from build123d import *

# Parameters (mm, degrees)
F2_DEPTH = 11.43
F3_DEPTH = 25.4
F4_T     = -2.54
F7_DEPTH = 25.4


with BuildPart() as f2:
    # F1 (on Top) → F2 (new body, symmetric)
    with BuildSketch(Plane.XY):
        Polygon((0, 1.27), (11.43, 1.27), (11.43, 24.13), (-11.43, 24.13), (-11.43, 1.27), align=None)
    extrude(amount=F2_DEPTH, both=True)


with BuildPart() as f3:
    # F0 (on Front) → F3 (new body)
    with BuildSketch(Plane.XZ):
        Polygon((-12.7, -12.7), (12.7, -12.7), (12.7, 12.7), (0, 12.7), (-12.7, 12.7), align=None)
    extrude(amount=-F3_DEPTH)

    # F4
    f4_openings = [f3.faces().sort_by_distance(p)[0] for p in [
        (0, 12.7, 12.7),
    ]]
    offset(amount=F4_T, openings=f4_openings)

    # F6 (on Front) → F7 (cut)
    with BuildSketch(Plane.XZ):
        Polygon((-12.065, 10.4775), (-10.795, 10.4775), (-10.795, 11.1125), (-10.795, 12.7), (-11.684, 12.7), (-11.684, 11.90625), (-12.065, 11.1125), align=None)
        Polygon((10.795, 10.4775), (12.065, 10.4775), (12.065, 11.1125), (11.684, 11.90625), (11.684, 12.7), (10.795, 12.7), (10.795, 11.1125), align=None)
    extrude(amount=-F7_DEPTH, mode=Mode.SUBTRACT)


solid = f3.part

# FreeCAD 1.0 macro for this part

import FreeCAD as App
import Part
import Sketcher

V = App.Vector
Q = App.Units.Quantity


def faces_at(feature, points):
    """Names of the faces that lie closest to the given points."""
    faces = feature.Shape.Faces
    near = lambda p: min(range(len(faces)), key=lambda i: faces[i].distToShape(Part.Vertex(*p))[0])
    return sorted({f"Face{near(p) + 1}" for p in points})


def add_polygon(sketch, points):
    """Adds a closed chain of lines whose ends are joined by coincident constraints."""
    first, n = sketch.GeometryCount, len(points)
    for a, b in zip(points, points[1:] + points[:1]):
        sketch.addGeometry(Part.LineSegment(App.Vector(*a, 0), App.Vector(*b, 0)), False)
    for i in range(n):
        sketch.addConstraint(Sketcher.Constraint("Coincident", first + i, 2, first + (i + 1) % n, 1))

doc = App.newDocument("Part")
params = doc.addObject("Spreadsheet::Sheet", "Params")
for row, (alias, value) in enumerate([
    ("sketch1_width", "0.9 in"),
    ("pad1_length", "0.9 in"),
    ("sketch2_width", "1 in"),
    ("pad2_length", "1 in"),
    ("thickness_wall", "0.1 in"),
    ("sketch3_width", "0.05 in"),
    ("sketch3_width2", "0.035 in"),
    ("sketch3_height", "0.03125 in"),
    ("sketch3_height2", "0.025 in"),
    ("pocket1_length", "1 in"),
], start=1):
    params.set(f"A{row}", alias)
    params.set(f"B{row}", "=" + value)
    params.setAlias(f"B{row}", alias)

body = doc.addObject("PartDesign::Body", "Body")

sketch1 = body.newObject("Sketcher::SketchObject", "Sketch")
sketch1.AttachmentSupport = (doc.getObject("XY_Plane"), [""])
sketch1.MapMode = "FlatFace"
add_polygon(sketch1, [(11, 1), (11, 24), (-11, 24), (-11, 1)])
sketch1.addConstraint(Sketcher.Constraint("Vertical", 0))
sketch1.addConstraint(Sketcher.Constraint("Horizontal", 1))
sketch1.addConstraint(Sketcher.Constraint("Vertical", 2))
sketch1.addConstraint(Sketcher.Constraint("Horizontal", 3))
sketch1.addConstraint(Sketcher.Constraint("Equal", 3, 0))
sketch1.addConstraint(Sketcher.Constraint("DistanceX", 1, 2, 1, 1, Q("0.9 in")))
sketch1.addConstraint(Sketcher.Constraint("DistanceX", -1, 1, 0, 2, Q("0.45 in")))
sketch1.addConstraint(Sketcher.Constraint("DistanceY", -1, 1, 0, 2, Q("0.95 in")))
sketch1.setExpression("Constraints[9]", "Params.sketch1_width")
pad1 = body.newObject("PartDesign::Pad", "Pad")
pad1.Profile = sketch1
pad1.setExpression("Length", "Params.pad1_length")
pad1.Midplane = True
body2 = doc.addObject("PartDesign::Body", "Body001")

sketch2 = body2.newObject("Sketcher::SketchObject", "Sketch001")
sketch2.AttachmentSupport = (doc.getObject("XZ_Plane001"), [""])
sketch2.MapMode = "FlatFace"
add_polygon(sketch2, [(-13, -13), (13, -13), (13, 13), (-13, 13)])
sketch2.addConstraint(Sketcher.Constraint("Horizontal", 0))
sketch2.addConstraint(Sketcher.Constraint("Vertical", 1))
sketch2.addConstraint(Sketcher.Constraint("Horizontal", 2))
sketch2.addConstraint(Sketcher.Constraint("Vertical", 3))
sketch2.addConstraint(Sketcher.Constraint("Symmetric", 0, 2, 2, 2, -1, 1))
sketch2.addConstraint(Sketcher.Constraint("Equal", 2, 1))
sketch2.addConstraint(Sketcher.Constraint("DistanceX", 0, 1, 0, 2, Q("1 in")))
sketch2.setExpression("Constraints[10]", "Params.sketch2_width")
pad2 = body2.newObject("PartDesign::Pad", "Pad001")
pad2.Profile = sketch2
pad2.setExpression("Length", "Params.pad2_length")
pad2.Reversed = True
doc.recompute()

thickness = body2.newObject("PartDesign::Thickness", "Thickness")
thickness.Base = (pad2, faces_at(pad2, [(0, 12.7, 12.7)]))
thickness.setExpression("Value", "Params.thickness_wall")
thickness.Reversed = True
thickness.Join = "Arc"

sketch3 = body2.newObject("Sketcher::SketchObject", "Sketch002")
sketch3.AttachmentSupport = (doc.getObject("XZ_Plane001"), [""])
sketch3.MapMode = "FlatFace"
add_polygon(sketch3, [(-12.1, 10.5), (-10.8, 10.5), (-10.8, 12.7), (-11.7, 12.7), (-11.7, 11.9), (-12.1, 11.1)])
add_polygon(sketch3, [(10.8, 10.5), (12.1, 10.5), (12.1, 11.1), (11.7, 11.9), (11.7, 12.7), (10.8, 12.7)])
sketch3.addConstraint(Sketcher.Constraint("Horizontal", 0))
sketch3.addConstraint(Sketcher.Constraint("Vertical", 1))
sketch3.addConstraint(Sketcher.Constraint("Horizontal", 2))
sketch3.addConstraint(Sketcher.Constraint("Vertical", 3))
sketch3.addConstraint(Sketcher.Constraint("Vertical", 5))
sketch3.addConstraint(Sketcher.Constraint("Horizontal", 6))
sketch3.addConstraint(Sketcher.Constraint("Vertical", 7))
sketch3.addConstraint(Sketcher.Constraint("Vertical", 9))
sketch3.addConstraint(Sketcher.Constraint("Horizontal", 10))
sketch3.addConstraint(Sketcher.Constraint("Vertical", 11))
sketch3.addConstraint(Sketcher.Constraint("Symmetric", 5, 2, 6, 2, -2))
sketch3.addConstraint(Sketcher.Constraint("Symmetric", 3, 2, 8, 2, -2))
sketch3.addConstraint(Sketcher.Constraint("Symmetric", 1, 2, 10, 2, -2))
sketch3.addConstraint(Sketcher.Constraint("Horizontal", 4, 2, 7, 2))
sketch3.addConstraint(Sketcher.Constraint("DistanceX", 0, 1, 0, 2, Q("0.05 in")))
sketch3.addConstraint(Sketcher.Constraint("DistanceY", -1, 1, 1, 2, Q("0.5 in")))
sketch3.addConstraint(Sketcher.Constraint("DistanceX", 0, 2, 6, 2, Q("0.9 in")))
sketch3.addConstraint(Sketcher.Constraint("DistanceX", 2, 2, 2, 1, Q("0.035 in")))
sketch3.addConstraint(Sketcher.Constraint("DistanceY", 3, 2, 3, 1, Q("0.03125 in")))
sketch3.addConstraint(Sketcher.Constraint("DistanceY", 5, 2, 5, 1, Q("0.025 in")))
sketch3.addConstraint(Sketcher.Constraint("DistanceY", 1, 1, 1, 2, Q("0.0875 in")))
sketch3.setExpression("Constraints[26]", "Params.sketch3_width")
sketch3.setExpression("Constraints[29]", "Params.sketch3_width2")
sketch3.setExpression("Constraints[30]", "Params.sketch3_height")
sketch3.setExpression("Constraints[31]", "Params.sketch3_height2")
pocket1 = body2.newObject("PartDesign::Pocket", "Pocket")
pocket1.Profile = sketch3
pocket1.setExpression("Length", "Params.pocket1_length")
body.Visibility = False

doc.recompute()
